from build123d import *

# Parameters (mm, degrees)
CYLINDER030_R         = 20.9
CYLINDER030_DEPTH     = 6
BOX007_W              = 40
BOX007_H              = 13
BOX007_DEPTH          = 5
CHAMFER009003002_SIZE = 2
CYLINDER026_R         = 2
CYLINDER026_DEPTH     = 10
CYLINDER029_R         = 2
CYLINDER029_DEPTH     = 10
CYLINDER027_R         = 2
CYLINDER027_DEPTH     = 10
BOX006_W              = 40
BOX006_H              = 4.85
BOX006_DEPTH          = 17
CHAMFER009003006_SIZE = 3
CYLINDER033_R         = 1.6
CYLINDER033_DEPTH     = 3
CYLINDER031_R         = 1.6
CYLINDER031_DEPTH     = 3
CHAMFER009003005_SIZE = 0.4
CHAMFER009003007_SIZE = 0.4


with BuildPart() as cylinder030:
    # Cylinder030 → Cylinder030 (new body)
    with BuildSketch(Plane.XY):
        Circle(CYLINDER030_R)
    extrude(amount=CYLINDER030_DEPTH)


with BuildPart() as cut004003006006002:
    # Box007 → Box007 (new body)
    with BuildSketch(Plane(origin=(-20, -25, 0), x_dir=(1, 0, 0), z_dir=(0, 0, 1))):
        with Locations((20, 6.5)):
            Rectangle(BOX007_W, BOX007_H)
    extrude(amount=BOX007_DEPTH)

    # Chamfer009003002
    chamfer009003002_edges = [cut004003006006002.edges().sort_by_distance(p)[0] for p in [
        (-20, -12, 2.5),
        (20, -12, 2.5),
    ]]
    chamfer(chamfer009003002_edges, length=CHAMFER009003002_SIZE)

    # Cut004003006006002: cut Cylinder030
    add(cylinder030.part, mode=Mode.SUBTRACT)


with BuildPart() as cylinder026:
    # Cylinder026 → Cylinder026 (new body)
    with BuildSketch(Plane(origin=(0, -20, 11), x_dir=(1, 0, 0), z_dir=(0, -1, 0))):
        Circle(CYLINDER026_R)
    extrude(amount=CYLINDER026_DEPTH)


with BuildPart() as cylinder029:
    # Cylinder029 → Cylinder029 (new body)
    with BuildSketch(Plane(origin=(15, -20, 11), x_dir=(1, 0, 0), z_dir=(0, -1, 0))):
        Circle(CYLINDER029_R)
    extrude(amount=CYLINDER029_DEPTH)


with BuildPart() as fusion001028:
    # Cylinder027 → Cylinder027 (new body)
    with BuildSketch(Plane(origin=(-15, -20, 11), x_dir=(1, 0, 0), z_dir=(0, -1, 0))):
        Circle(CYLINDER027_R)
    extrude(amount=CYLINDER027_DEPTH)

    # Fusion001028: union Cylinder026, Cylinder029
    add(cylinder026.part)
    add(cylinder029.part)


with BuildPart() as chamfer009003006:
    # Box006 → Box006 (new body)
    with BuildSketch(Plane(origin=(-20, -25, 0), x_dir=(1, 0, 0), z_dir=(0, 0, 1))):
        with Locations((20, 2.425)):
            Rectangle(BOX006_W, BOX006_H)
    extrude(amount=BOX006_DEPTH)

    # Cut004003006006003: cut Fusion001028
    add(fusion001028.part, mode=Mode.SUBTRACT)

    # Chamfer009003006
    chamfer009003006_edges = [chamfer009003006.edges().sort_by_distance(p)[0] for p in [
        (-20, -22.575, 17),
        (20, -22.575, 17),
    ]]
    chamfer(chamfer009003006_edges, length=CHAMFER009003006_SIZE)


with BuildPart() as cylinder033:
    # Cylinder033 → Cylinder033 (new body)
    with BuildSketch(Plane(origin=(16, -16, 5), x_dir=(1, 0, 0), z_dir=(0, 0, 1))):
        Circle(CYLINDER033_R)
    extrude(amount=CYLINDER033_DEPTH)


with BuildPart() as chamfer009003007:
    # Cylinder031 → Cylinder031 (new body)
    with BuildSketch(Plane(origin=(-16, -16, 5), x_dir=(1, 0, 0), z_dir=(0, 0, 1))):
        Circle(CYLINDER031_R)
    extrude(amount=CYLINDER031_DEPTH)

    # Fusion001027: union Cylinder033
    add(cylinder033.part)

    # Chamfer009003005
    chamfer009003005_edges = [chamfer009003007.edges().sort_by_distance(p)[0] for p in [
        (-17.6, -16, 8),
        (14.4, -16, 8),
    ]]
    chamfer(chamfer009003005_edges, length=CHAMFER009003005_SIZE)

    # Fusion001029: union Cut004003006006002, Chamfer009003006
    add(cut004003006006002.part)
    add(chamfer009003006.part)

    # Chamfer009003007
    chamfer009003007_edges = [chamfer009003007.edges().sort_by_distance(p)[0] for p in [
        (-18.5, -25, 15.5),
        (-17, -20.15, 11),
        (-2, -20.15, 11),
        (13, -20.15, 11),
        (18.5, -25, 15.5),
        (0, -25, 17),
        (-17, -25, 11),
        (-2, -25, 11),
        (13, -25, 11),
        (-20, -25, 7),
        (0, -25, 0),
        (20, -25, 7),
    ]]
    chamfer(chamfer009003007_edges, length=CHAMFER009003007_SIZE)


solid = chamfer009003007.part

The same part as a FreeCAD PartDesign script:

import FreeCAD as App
import Part
import Sketcher

V = App.Vector


def edges_at(feature, points):
    """Names of the edges that pass closest to the given points."""
    edges = feature.Shape.Edges
    near = lambda p: min(range(len(edges)), key=lambda i: edges[i].distToShape(Part.Vertex(*p))[0])
    return sorted({f"Edge{near(p) + 1}" for p in points})

doc = App.newDocument("Part")
body = doc.addObject("PartDesign::Body", "Body")

sketch1 = doc.addObject("Sketcher::SketchObject", "Sketch")
body.addObject(sketch1)
sketch1.AttachmentSupport = (doc.XY_Plane, [""])
sketch1.MapMode = "FlatFace"
sketch1.addGeometry(Part.Circle(V(0, 0, 0), V(0, 0, 1), 20.9), False)
sketch1.addConstraint(Sketcher.Constraint("Coincident", 0, 3, -1, 1))
sketch1.addConstraint(Sketcher.Constraint("Diameter", 0, 41.8))
pad1 = doc.addObject("PartDesign::Pad", "Pad")
body.addObject(pad1)
pad1.Profile = sketch1
pad1.Length = 6
body2 = doc.addObject("PartDesign::Body", "Body001")

sketch2 = doc.addObject("Sketcher::SketchObject", "Sketch001")
body2.addObject(sketch2)
sketch2.AttachmentSupport = (doc.getObject("XY_Plane001"), [""])
sketch2.MapMode = "FlatFace"
sketch2.addGeometry(Part.LineSegment(V(-20, -12, 0), V(-20, -25, 0)), False)
sketch2.addGeometry(Part.LineSegment(V(-20, -25, 0), V(20, -25, 0)), False)
sketch2.addGeometry(Part.LineSegment(V(20, -25, 0), V(20, -12, 0)), False)
sketch2.addGeometry(Part.LineSegment(V(20, -12, 0), V(-20, -12, 0)), False)
sketch2.addConstraint(Sketcher.Constraint("Coincident", 0, 2, 1, 1))
sketch2.addConstraint(Sketcher.Constraint("Coincident", 1, 2, 2, 1))
sketch2.addConstraint(Sketcher.Constraint("Coincident", 2, 2, 3, 1))
sketch2.addConstraint(Sketcher.Constraint("Coincident", 3, 2, 0, 1))
sketch2.addConstraint(Sketcher.Constraint("Vertical", 0))
sketch2.addConstraint(Sketcher.Constraint("Horizontal", 1))
sketch2.addConstraint(Sketcher.Constraint("Vertical", 2))
sketch2.addConstraint(Sketcher.Constraint("Horizontal", 3))
sketch2.addConstraint(Sketcher.Constraint("DistanceX", 1, 1, 1, 2, 40.0))
sketch2.addConstraint(Sketcher.Constraint("DistanceY", 0, 2, 0, 1, 13.0))
sketch2.addConstraint(Sketcher.Constraint("DistanceX", 0, 2, -1, 1, 20.0))
sketch2.addConstraint(Sketcher.Constraint("DistanceY", 0, 2, -1, 1, 25.0))
pad2 = doc.addObject("PartDesign::Pad", "Pad001")
body2.addObject(pad2)
pad2.Profile = sketch2
pad2.Length = 5
doc.recompute()

chamfer = doc.addObject("PartDesign::Chamfer", "Chamfer")
body2.addObject(chamfer)
chamfer.Base = (pad2, edges_at(pad2, [(-20, -12, 2.5), (20, -12, 2.5)]))
chamfer.Size = 2
doc.recompute()

boolean = doc.addObject("PartDesign::Boolean", "Boolean")
body2.addObject(boolean)
boolean.Type = "Cut"
boolean.addObjects([body])
body3 = doc.addObject("PartDesign::Body", "Body002")

sketch3 = doc.addObject("Sketcher::SketchObject", "Sketch002")
body3.addObject(sketch3)
sketch3.AttachmentSupport = (doc.getObject("XZ_Plane002"), [""])
sketch3.MapMode = "FlatFace"
sketch3.AttachmentOffset = App.Placement(V(0, 0, 20), App.Rotation())
sketch3.addGeometry(Part.Circle(V(0, 11, 0), V(0, 0, 1), 2), False)
sketch3.addConstraint(Sketcher.Constraint("PointOnObject", 0, 3, -2))
sketch3.addConstraint(Sketcher.Constraint("Diameter", 0, 4.0))
sketch3.addConstraint(Sketcher.Constraint("DistanceY", -1, 1, 0, 3, 11.0))
pad3 = doc.addObject("PartDesign::Pad", "Pad002")
body3.addObject(pad3)
pad3.Profile = sketch3
pad3.Length = 10
body4 = doc.addObject("PartDesign::Body", "Body003")

sketch4 = doc.addObject("Sketcher::SketchObject", "Sketch003")
body4.addObject(sketch4)
sketch4.AttachmentSupport = (doc.getObject("XZ_Plane003"), [""])
sketch4.MapMode = "FlatFace"
sketch4.AttachmentOffset = App.Placement(V(0, 0, 20), App.Rotation())
sketch4.addGeometry(Part.Circle(V(15, 11, 0), V(0, 0, 1), 2), False)
sketch4.addConstraint(Sketcher.Constraint("Diameter", 0, 4.0))
sketch4.addConstraint(Sketcher.Constraint("DistanceX", -1, 1, 0, 3, 15.0))
sketch4.addConstraint(Sketcher.Constraint("DistanceY", -1, 1, 0, 3, 11.0))
pad4 = doc.addObject("PartDesign::Pad", "Pad003")
body4.addObject(pad4)
pad4.Profile = sketch4
pad4.Length = 10
body5 = doc.addObject("PartDesign::Body", "Body004")
body5.AllowCompound = True

sketch5 = doc.addObject("Sketcher::SketchObject", "Sketch004")
body5.addObject(sketch5)
sketch5.AttachmentSupport = (doc.getObject("XZ_Plane004"), [""])
sketch5.MapMode = "FlatFace"
sketch5.AttachmentOffset = App.Placement(V(0, 0, 20), App.Rotation())
sketch5.addGeometry(Part.Circle(V(-15, 11, 0), V(0, 0, 1), 2), False)
sketch5.addConstraint(Sketcher.Constraint("Diameter", 0, 4.0))
sketch5.addConstraint(Sketcher.Constraint("DistanceX", 0, 3, -1, 1, 15.0))
sketch5.addConstraint(Sketcher.Constraint("DistanceY", -1, 1, 0, 3, 11.0))
pad5 = doc.addObject("PartDesign::Pad", "Pad004")
body5.addObject(pad5)
pad5.Profile = sketch5
pad5.Length = 10
doc.recompute()

boolean2 = doc.addObject("PartDesign::Boolean", "Boolean001")
body5.addObject(boolean2)
boolean2.Type = "Fuse"
boolean2.addObjects([body3])
doc.recompute()

boolean3 = doc.addObject("PartDesign::Boolean", "Boolean002")
body5.addObject(boolean3)
boolean3.Type = "Fuse"
boolean3.addObjects([body4])
body6 = doc.addObject("PartDesign::Body", "Body005")

sketch6 = doc.addObject("Sketcher::SketchObject", "Sketch005")
body6.addObject(sketch6)
sketch6.AttachmentSupport = (doc.getObject("XY_Plane005"), [""])
sketch6.MapMode = "FlatFace"
sketch6.addGeometry(Part.LineSegment(V(-20, -20.15, 0), V(-20, -25, 0)), False)
sketch6.addGeometry(Part.LineSegment(V(-20, -25, 0), V(20, -25, 0)), False)
sketch6.addGeometry(Part.LineSegment(V(20, -25, 0), V(20, -20.15, 0)), False)
sketch6.addGeometry(Part.LineSegment(V(20, -20.15, 0), V(-20, -20.15, 0)), False)
sketch6.addConstraint(Sketcher.Constraint("Coincident", 0, 2, 1, 1))
sketch6.addConstraint(Sketcher.Constraint("Coincident", 1, 2, 2, 1))
sketch6.addConstraint(Sketcher.Constraint("Coincident", 2, 2, 3, 1))
sketch6.addConstraint(Sketcher.Constraint("Coincident", 3, 2, 0, 1))
sketch6.addConstraint(Sketcher.Constraint("Vertical", 0))
sketch6.addConstraint(Sketcher.Constraint("Horizontal", 1))
sketch6.addConstraint(Sketcher.Constraint("Vertical", 2))
sketch6.addConstraint(Sketcher.Constraint("Horizontal", 3))
sketch6.addConstraint(Sketcher.Constraint("DistanceX", 1, 1, 1, 2, 40.0))
sketch6.addConstraint(Sketcher.Constraint("DistanceX", 0, 2, -1, 1, 20.0))
sketch6.addConstraint(Sketcher.Constraint("DistanceY", 0, 2, -1, 1, 25.0))
sketch6.addConstraint(Sketcher.Constraint("DistanceY", 0, 2, 0, 1, 4.85))
pad6 = doc.addObject("PartDesign::Pad", "Pad005")
body6.addObject(pad6)
pad6.Profile = sketch6
pad6.Length = 17
doc.recompute()

boolean4 = doc.addObject("PartDesign::Boolean", "Boolean003")
body6.addObject(boolean4)
boolean4.Type = "Cut"
boolean4.addObjects([body5])
doc.recompute()

chamfer2 = doc.addObject("PartDesign::Chamfer", "Chamfer001")
body6.addObject(chamfer2)
chamfer2.Base = (boolean4, edges_at(boolean4, [(-20, -22.575, 17), (20, -22.575, 17)]))
chamfer2.Size = 3
body7 = doc.addObject("PartDesign::Body", "Body006")

sketch7 = doc.addObject("Sketcher::SketchObject", "Sketch006")
body7.addObject(sketch7)
sketch7.AttachmentSupport = (doc.getObject("XY_Plane006"), [""])
sketch7.MapMode = "FlatFace"
sketch7.AttachmentOffset = App.Placement(V(0, 0, 5), App.Rotation())
sketch7.addGeometry(Part.Circle(V(16, -16, 0), V(0, 0, 1), 1.6), False)
sketch7.addConstraint(Sketcher.Constraint("Diameter", 0, 3.2))
sketch7.addConstraint(Sketcher.Constraint("DistanceX", -1, 1, 0, 3, 16.0))
sketch7.addConstraint(Sketcher.Constraint("DistanceY", 0, 3, -1, 1, 16.0))
pad7 = doc.addObject("PartDesign::Pad", "Pad006")
body7.addObject(pad7)
pad7.Profile = sketch7
pad7.Length = 3
body8 = doc.addObject("PartDesign::Body", "Body007")
body8.AllowCompound = True

sketch8 = doc.addObject("Sketcher::SketchObject", "Sketch007")
body8.addObject(sketch8)
sketch8.AttachmentSupport = (doc.getObject("XY_Plane007"), [""])
sketch8.MapMode = "FlatFace"
sketch8.AttachmentOffset = App.Placement(V(0, 0, 5), App.Rotation())
sketch8.addGeometry(Part.Circle(V(-16, -16, 0), V(0, 0, 1), 1.6), False)
sketch8.addConstraint(Sketcher.Constraint("Diameter", 0, 3.2))
sketch8.addConstraint(Sketcher.Constraint("DistanceX", 0, 3, -1, 1, 16.0))
sketch8.addConstraint(Sketcher.Constraint("DistanceY", 0, 3, -1, 1, 16.0))
pad8 = doc.addObject("PartDesign::Pad", "Pad007")
body8.addObject(pad8)
pad8.Profile = sketch8
pad8.Length = 3
doc.recompute()

boolean5 = doc.addObject("PartDesign::Boolean", "Boolean004")
body8.addObject(boolean5)
boolean5.Type = "Fuse"
boolean5.addObjects([body7])
doc.recompute()

chamfer3 = doc.addObject("PartDesign::Chamfer", "Chamfer002")
body8.addObject(chamfer3)
chamfer3.Base = (boolean5, edges_at(boolean5, [(-17.6, -16, 8), (14.4, -16, 8)]))
chamfer3.Size = 0.4
doc.recompute()

boolean6 = doc.addObject("PartDesign::Boolean", "Boolean005")
body8.addObject(boolean6)
boolean6.Type = "Fuse"
boolean6.addObjects([body2])
doc.recompute()

boolean7 = doc.addObject("PartDesign::Boolean", "Boolean006")
body8.addObject(boolean7)
boolean7.Type = "Fuse"
boolean7.addObjects([body6])
doc.recompute()

chamfer4 = doc.addObject("PartDesign::Chamfer", "Chamfer003")
body8.addObject(chamfer4)
chamfer4.Base = (boolean7, edges_at(boolean7, [
    (-18.5, -25, 15.5),
    (-17, -20.15, 11),
    (-2, -20.15, 11),
    (13, -20.15, 11),
    (18.5, -25, 15.5),
    (0, -25, 17),
    (-17, -25, 11),
    (-2, -25, 11),
    (13, -25, 11),
    (-20, -25, 7),
    (0, -25, 0),
    (20, -25, 7),
]))
chamfer4.Size = 0.4

doc.recompute()
